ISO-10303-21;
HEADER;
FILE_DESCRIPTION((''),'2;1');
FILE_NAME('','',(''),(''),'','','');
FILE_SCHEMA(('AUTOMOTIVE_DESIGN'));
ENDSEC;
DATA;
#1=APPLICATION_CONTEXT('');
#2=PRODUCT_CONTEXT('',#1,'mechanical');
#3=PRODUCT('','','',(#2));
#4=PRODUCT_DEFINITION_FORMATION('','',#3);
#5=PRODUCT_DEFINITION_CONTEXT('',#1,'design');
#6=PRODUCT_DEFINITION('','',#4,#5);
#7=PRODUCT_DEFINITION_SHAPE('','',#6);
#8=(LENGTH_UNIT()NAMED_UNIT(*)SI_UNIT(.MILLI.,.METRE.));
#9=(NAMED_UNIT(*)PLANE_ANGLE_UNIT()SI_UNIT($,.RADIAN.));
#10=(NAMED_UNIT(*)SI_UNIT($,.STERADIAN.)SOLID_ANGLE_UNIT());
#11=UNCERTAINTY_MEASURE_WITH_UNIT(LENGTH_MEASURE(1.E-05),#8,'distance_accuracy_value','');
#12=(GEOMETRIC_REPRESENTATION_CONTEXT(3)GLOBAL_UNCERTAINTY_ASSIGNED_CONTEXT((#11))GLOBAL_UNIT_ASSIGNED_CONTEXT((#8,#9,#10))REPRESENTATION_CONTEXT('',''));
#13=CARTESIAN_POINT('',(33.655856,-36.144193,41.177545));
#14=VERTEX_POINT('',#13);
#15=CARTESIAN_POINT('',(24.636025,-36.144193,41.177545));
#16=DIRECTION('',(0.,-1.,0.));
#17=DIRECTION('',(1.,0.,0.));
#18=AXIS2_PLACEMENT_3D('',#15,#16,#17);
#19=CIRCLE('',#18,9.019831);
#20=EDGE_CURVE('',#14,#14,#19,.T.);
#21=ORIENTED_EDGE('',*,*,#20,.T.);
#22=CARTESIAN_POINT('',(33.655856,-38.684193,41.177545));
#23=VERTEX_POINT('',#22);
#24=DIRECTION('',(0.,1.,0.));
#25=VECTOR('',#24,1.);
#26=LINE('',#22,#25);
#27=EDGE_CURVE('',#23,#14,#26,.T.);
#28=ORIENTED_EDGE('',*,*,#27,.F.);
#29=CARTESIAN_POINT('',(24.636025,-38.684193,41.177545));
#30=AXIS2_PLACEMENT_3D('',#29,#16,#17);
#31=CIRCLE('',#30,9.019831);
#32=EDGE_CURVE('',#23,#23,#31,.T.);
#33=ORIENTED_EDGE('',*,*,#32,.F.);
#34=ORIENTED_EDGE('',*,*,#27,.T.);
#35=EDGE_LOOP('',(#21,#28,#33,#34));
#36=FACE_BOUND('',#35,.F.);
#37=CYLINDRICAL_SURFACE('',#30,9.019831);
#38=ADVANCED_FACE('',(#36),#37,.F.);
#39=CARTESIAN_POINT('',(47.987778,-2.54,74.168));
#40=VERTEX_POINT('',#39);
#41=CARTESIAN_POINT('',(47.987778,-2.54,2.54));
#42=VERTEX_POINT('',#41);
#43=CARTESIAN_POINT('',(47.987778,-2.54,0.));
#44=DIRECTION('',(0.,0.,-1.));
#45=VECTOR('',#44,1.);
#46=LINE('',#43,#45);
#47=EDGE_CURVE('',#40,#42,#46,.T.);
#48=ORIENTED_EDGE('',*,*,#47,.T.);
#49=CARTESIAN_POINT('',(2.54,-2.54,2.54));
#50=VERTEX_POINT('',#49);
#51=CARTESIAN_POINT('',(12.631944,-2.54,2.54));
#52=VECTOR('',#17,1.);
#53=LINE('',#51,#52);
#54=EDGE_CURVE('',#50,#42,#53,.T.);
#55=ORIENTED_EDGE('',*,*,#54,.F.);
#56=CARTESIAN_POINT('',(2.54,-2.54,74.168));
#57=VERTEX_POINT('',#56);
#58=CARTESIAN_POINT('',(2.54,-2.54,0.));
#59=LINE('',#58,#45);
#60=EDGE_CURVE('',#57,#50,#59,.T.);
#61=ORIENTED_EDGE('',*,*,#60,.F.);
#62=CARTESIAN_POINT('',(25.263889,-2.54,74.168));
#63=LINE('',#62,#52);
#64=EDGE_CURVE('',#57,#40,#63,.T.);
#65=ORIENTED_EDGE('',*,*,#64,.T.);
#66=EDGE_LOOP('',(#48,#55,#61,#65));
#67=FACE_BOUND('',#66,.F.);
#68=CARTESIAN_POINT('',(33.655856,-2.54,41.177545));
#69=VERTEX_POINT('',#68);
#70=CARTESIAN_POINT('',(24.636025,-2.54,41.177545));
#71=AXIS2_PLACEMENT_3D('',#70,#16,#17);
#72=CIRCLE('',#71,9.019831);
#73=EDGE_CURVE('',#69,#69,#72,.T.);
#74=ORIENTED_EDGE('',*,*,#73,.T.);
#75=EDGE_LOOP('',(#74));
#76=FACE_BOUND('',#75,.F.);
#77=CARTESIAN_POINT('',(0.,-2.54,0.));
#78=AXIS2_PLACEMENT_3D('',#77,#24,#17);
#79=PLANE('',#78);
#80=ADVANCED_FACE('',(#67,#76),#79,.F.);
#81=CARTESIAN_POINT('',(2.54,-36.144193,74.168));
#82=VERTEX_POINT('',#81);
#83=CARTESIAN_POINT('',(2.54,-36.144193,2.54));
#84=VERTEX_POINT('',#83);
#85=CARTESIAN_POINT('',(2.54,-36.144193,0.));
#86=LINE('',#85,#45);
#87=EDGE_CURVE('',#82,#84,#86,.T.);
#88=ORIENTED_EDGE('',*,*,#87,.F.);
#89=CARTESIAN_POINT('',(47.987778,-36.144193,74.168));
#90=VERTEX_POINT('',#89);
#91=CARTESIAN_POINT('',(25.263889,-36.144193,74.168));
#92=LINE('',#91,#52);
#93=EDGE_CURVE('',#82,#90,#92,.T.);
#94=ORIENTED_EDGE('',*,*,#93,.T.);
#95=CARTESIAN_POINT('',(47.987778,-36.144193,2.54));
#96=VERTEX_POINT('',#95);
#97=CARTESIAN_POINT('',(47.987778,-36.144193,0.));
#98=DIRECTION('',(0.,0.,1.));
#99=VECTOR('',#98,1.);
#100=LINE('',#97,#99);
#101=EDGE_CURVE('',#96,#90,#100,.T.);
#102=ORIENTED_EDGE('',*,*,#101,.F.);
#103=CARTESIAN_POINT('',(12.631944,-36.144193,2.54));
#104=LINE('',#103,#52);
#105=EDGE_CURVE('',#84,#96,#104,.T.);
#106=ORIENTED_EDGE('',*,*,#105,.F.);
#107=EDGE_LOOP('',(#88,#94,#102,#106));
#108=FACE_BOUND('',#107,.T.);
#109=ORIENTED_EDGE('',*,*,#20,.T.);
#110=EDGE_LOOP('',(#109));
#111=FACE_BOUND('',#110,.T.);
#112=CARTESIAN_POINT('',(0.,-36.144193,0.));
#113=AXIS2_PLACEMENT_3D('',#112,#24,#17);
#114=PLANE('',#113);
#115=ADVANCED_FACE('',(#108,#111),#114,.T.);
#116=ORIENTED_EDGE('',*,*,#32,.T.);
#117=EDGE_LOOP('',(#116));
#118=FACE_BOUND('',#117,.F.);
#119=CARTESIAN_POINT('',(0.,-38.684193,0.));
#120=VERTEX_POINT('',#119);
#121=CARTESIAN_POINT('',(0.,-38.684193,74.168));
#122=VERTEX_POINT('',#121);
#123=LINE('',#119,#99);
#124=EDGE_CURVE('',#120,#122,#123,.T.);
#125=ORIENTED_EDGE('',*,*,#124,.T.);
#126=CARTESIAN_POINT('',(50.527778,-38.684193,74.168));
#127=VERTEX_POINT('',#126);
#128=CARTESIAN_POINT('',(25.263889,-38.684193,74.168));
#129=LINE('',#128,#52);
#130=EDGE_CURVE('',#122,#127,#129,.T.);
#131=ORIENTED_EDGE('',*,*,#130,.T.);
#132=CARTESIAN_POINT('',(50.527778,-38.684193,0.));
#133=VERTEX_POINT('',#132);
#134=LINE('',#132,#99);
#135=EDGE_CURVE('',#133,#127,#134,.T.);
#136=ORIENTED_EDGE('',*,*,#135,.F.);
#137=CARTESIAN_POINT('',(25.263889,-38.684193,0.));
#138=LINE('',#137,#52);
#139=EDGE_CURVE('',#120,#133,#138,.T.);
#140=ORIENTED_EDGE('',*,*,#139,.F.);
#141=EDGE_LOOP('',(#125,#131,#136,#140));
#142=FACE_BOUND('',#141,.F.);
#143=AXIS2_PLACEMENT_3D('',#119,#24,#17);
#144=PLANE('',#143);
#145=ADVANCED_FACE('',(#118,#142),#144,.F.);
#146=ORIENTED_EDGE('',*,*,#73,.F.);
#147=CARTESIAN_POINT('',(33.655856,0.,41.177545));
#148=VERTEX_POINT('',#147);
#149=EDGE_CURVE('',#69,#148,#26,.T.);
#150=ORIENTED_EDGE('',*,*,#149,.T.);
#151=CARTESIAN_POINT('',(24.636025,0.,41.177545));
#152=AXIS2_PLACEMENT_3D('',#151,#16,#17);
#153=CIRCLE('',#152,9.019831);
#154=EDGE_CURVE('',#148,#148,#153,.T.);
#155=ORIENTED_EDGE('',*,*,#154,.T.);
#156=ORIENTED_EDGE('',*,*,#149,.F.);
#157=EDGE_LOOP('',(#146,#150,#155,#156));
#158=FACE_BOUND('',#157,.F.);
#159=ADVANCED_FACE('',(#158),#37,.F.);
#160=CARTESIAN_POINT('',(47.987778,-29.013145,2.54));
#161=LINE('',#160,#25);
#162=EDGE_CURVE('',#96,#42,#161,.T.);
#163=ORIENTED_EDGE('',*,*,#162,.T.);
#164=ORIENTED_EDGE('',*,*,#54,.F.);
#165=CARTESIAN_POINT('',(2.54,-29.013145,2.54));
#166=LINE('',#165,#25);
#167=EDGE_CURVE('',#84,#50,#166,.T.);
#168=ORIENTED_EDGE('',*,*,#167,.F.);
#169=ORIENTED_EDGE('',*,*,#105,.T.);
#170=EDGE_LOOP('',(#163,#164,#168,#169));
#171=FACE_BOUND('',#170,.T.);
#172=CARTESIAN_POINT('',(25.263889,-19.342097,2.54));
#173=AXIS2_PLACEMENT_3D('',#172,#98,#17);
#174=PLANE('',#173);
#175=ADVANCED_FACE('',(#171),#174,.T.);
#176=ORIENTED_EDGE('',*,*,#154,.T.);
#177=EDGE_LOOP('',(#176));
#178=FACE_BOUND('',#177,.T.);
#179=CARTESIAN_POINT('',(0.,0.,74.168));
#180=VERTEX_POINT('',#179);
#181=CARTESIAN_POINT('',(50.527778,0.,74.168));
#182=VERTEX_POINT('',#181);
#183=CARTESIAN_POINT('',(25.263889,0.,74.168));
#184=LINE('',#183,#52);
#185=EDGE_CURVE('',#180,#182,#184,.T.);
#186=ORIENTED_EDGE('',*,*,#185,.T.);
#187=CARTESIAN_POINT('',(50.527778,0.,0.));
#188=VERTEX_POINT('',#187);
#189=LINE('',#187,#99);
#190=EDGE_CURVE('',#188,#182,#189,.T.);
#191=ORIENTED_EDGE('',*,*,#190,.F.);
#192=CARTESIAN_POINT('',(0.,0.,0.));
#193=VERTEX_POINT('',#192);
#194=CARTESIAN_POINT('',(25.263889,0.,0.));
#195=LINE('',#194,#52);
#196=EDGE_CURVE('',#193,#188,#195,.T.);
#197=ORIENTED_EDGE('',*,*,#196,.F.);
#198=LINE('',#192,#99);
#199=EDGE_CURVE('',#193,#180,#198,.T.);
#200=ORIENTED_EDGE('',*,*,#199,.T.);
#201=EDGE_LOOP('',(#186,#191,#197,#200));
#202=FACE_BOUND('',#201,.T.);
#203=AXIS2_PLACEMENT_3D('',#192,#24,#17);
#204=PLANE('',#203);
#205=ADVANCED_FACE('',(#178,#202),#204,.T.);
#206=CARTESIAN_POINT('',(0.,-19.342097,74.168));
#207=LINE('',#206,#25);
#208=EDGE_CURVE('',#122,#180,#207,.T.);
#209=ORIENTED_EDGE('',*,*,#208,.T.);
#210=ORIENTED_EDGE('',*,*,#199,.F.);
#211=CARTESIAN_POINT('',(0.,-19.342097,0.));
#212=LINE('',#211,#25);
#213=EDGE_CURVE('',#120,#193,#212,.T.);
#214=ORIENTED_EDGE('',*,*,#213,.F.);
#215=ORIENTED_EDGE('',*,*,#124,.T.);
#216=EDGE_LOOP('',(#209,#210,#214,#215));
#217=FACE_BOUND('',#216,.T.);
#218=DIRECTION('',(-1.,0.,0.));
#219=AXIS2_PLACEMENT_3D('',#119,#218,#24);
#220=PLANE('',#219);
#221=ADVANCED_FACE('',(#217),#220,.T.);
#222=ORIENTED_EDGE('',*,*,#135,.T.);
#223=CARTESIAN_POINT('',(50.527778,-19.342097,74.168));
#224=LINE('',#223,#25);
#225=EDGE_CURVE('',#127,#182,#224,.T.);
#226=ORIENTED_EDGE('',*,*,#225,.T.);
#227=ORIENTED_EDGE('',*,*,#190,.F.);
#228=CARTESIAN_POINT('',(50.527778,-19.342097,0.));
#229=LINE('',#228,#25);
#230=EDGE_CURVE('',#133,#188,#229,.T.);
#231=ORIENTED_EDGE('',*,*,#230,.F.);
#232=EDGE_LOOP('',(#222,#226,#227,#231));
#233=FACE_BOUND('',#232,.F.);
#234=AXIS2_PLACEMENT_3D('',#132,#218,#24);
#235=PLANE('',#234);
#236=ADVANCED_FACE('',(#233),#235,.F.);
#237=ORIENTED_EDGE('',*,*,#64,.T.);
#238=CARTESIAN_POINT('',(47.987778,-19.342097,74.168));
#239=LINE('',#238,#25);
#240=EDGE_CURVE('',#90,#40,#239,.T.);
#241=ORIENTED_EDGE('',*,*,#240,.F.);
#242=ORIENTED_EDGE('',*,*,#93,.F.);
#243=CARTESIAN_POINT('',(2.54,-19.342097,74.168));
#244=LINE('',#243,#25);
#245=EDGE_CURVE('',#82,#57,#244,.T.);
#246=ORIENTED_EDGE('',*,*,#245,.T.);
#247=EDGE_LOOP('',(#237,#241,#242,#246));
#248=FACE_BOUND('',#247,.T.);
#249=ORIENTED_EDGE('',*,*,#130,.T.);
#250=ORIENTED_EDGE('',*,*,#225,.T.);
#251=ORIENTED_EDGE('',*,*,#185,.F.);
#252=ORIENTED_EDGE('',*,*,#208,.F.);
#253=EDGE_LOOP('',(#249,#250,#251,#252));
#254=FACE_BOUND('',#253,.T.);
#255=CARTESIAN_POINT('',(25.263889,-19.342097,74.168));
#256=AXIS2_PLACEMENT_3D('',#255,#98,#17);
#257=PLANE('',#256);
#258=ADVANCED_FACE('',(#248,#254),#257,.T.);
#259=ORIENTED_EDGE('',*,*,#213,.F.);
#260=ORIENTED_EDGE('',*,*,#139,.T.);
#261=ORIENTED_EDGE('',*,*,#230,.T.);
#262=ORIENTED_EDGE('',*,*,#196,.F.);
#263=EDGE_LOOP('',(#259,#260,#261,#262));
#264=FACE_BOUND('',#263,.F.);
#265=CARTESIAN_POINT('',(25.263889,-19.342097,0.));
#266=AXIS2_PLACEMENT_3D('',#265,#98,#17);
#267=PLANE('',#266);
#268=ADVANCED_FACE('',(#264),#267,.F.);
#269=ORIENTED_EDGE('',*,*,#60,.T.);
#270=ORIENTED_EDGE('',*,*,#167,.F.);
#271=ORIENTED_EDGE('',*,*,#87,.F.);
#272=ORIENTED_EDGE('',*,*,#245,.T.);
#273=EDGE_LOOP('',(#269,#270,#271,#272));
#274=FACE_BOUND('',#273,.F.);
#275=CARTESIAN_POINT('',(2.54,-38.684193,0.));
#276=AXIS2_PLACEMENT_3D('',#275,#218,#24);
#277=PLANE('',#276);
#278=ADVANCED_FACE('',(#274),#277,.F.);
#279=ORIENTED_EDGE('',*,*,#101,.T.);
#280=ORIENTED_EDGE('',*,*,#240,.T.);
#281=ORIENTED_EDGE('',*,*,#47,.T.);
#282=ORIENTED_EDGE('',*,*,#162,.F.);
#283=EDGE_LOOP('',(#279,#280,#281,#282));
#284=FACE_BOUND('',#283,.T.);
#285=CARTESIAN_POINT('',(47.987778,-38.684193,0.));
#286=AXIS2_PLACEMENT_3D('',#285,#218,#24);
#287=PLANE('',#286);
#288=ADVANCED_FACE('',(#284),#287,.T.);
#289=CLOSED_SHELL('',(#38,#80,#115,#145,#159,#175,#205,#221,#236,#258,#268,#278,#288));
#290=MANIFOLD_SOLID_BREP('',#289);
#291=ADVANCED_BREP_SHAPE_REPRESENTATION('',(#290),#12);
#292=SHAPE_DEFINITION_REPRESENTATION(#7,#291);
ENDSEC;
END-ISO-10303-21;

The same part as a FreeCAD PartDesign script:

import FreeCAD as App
import Part
import Sketcher
from FreeCAD import Vector
Q = App.Units.Quantity


def faces_at(feature, points):
    """Names of the faces that lie closest to the given points."""
    faces = feature.Shape.Faces
    near = lambda p: min(range(len(faces)), key=lambda i: faces[i].distToShape(Part.Vertex(*p))[0])
    return sorted({f"Face{near(p) + 1}" for p in points})


def add_polygon(sketch, points):
    """Adds a closed chain of lines whose ends are joined by coincident constraints."""
    first, n = sketch.GeometryCount, len(points)
    for a, b in zip(points, points[1:] + points[:1]):
        sketch.addGeometry(Part.LineSegment(App.Vector(*a, 0), App.Vector(*b, 0)), False)
    for i in range(n):
        sketch.addConstraint(Sketcher.Constraint("Coincident", first + i, 2, first + (i + 1) % n, 1))

doc = App.newDocument("Part")
body = doc.addObject("PartDesign::Body", "Body")

sketch1 = body.newObject("Sketcher::SketchObject", "Sketch")
sketch1.AttachmentSupport = (doc.getObject("XY_Plane"), [""])
sketch1.MapMode = "FlatFace"
add_polygon(sketch1, [(0, 0), (0, -38.684193), (50.527778, -38.684193), (50.527778, 0)])
sketch1.addConstraint([
    Sketcher.Constraint("Vertical", 0),
    Sketcher.Constraint("Horizontal", 1),
    Sketcher.Constraint("Vertical", 2),
    Sketcher.Constraint("Horizontal", 3),
    Sketcher.Constraint("Coincident", 3, 2, -1, 1),
    Sketcher.Constraint("DistanceX", 1, 1, 1, 2, Q("50.527778 mm")),
    Sketcher.Constraint("DistanceY", 0, 2, 0, 1, Q("38.684193 mm")),
])
pad1 = body.newObject("PartDesign::Pad", "Pad")
pad1.Profile = sketch1
pad1.Length = Q("2.92 in")
doc.recompute()

thickness = body.newObject("PartDesign::Thickness", "Thickness")
thickness.Base = (pad1, faces_at(pad1, [(25.264, -19.342, 74.168)]))
thickness.Value = Q("0.1 in")
thickness.Reversed = True
thickness.Join = "Arc"

sketch2 = body.newObject("Sketcher::SketchObject", "Sketch001")
sketch2.AttachmentSupport = (doc.getObject("XZ_Plane"), [""])
sketch2.MapMode = "FlatFace"
sketch2.AttachmentOffset = App.Placement(Vector(0, 0, 38.684193), App.Rotation())
sketch2.addGeometry(Part.Circle(Vector(24.636025, 41.177545, 0), Vector(0, 0, 1), 9.019831), False)
sketch2.addConstraint([
    Sketcher.Constraint("Diameter", 0, Q("18.039662 mm")),
    Sketcher.Constraint("DistanceX", -1, 1, 0, 3, Q("24.636025 mm")),
    Sketcher.Constraint("DistanceY", -1, 1, 0, 3, Q("41.177545 mm")),
])
pocket1 = body.newObject("PartDesign::Pocket", "Pocket")
pocket1.Profile = sketch2
pocket1.Length = Q("2.83 in")

doc.recompute()
